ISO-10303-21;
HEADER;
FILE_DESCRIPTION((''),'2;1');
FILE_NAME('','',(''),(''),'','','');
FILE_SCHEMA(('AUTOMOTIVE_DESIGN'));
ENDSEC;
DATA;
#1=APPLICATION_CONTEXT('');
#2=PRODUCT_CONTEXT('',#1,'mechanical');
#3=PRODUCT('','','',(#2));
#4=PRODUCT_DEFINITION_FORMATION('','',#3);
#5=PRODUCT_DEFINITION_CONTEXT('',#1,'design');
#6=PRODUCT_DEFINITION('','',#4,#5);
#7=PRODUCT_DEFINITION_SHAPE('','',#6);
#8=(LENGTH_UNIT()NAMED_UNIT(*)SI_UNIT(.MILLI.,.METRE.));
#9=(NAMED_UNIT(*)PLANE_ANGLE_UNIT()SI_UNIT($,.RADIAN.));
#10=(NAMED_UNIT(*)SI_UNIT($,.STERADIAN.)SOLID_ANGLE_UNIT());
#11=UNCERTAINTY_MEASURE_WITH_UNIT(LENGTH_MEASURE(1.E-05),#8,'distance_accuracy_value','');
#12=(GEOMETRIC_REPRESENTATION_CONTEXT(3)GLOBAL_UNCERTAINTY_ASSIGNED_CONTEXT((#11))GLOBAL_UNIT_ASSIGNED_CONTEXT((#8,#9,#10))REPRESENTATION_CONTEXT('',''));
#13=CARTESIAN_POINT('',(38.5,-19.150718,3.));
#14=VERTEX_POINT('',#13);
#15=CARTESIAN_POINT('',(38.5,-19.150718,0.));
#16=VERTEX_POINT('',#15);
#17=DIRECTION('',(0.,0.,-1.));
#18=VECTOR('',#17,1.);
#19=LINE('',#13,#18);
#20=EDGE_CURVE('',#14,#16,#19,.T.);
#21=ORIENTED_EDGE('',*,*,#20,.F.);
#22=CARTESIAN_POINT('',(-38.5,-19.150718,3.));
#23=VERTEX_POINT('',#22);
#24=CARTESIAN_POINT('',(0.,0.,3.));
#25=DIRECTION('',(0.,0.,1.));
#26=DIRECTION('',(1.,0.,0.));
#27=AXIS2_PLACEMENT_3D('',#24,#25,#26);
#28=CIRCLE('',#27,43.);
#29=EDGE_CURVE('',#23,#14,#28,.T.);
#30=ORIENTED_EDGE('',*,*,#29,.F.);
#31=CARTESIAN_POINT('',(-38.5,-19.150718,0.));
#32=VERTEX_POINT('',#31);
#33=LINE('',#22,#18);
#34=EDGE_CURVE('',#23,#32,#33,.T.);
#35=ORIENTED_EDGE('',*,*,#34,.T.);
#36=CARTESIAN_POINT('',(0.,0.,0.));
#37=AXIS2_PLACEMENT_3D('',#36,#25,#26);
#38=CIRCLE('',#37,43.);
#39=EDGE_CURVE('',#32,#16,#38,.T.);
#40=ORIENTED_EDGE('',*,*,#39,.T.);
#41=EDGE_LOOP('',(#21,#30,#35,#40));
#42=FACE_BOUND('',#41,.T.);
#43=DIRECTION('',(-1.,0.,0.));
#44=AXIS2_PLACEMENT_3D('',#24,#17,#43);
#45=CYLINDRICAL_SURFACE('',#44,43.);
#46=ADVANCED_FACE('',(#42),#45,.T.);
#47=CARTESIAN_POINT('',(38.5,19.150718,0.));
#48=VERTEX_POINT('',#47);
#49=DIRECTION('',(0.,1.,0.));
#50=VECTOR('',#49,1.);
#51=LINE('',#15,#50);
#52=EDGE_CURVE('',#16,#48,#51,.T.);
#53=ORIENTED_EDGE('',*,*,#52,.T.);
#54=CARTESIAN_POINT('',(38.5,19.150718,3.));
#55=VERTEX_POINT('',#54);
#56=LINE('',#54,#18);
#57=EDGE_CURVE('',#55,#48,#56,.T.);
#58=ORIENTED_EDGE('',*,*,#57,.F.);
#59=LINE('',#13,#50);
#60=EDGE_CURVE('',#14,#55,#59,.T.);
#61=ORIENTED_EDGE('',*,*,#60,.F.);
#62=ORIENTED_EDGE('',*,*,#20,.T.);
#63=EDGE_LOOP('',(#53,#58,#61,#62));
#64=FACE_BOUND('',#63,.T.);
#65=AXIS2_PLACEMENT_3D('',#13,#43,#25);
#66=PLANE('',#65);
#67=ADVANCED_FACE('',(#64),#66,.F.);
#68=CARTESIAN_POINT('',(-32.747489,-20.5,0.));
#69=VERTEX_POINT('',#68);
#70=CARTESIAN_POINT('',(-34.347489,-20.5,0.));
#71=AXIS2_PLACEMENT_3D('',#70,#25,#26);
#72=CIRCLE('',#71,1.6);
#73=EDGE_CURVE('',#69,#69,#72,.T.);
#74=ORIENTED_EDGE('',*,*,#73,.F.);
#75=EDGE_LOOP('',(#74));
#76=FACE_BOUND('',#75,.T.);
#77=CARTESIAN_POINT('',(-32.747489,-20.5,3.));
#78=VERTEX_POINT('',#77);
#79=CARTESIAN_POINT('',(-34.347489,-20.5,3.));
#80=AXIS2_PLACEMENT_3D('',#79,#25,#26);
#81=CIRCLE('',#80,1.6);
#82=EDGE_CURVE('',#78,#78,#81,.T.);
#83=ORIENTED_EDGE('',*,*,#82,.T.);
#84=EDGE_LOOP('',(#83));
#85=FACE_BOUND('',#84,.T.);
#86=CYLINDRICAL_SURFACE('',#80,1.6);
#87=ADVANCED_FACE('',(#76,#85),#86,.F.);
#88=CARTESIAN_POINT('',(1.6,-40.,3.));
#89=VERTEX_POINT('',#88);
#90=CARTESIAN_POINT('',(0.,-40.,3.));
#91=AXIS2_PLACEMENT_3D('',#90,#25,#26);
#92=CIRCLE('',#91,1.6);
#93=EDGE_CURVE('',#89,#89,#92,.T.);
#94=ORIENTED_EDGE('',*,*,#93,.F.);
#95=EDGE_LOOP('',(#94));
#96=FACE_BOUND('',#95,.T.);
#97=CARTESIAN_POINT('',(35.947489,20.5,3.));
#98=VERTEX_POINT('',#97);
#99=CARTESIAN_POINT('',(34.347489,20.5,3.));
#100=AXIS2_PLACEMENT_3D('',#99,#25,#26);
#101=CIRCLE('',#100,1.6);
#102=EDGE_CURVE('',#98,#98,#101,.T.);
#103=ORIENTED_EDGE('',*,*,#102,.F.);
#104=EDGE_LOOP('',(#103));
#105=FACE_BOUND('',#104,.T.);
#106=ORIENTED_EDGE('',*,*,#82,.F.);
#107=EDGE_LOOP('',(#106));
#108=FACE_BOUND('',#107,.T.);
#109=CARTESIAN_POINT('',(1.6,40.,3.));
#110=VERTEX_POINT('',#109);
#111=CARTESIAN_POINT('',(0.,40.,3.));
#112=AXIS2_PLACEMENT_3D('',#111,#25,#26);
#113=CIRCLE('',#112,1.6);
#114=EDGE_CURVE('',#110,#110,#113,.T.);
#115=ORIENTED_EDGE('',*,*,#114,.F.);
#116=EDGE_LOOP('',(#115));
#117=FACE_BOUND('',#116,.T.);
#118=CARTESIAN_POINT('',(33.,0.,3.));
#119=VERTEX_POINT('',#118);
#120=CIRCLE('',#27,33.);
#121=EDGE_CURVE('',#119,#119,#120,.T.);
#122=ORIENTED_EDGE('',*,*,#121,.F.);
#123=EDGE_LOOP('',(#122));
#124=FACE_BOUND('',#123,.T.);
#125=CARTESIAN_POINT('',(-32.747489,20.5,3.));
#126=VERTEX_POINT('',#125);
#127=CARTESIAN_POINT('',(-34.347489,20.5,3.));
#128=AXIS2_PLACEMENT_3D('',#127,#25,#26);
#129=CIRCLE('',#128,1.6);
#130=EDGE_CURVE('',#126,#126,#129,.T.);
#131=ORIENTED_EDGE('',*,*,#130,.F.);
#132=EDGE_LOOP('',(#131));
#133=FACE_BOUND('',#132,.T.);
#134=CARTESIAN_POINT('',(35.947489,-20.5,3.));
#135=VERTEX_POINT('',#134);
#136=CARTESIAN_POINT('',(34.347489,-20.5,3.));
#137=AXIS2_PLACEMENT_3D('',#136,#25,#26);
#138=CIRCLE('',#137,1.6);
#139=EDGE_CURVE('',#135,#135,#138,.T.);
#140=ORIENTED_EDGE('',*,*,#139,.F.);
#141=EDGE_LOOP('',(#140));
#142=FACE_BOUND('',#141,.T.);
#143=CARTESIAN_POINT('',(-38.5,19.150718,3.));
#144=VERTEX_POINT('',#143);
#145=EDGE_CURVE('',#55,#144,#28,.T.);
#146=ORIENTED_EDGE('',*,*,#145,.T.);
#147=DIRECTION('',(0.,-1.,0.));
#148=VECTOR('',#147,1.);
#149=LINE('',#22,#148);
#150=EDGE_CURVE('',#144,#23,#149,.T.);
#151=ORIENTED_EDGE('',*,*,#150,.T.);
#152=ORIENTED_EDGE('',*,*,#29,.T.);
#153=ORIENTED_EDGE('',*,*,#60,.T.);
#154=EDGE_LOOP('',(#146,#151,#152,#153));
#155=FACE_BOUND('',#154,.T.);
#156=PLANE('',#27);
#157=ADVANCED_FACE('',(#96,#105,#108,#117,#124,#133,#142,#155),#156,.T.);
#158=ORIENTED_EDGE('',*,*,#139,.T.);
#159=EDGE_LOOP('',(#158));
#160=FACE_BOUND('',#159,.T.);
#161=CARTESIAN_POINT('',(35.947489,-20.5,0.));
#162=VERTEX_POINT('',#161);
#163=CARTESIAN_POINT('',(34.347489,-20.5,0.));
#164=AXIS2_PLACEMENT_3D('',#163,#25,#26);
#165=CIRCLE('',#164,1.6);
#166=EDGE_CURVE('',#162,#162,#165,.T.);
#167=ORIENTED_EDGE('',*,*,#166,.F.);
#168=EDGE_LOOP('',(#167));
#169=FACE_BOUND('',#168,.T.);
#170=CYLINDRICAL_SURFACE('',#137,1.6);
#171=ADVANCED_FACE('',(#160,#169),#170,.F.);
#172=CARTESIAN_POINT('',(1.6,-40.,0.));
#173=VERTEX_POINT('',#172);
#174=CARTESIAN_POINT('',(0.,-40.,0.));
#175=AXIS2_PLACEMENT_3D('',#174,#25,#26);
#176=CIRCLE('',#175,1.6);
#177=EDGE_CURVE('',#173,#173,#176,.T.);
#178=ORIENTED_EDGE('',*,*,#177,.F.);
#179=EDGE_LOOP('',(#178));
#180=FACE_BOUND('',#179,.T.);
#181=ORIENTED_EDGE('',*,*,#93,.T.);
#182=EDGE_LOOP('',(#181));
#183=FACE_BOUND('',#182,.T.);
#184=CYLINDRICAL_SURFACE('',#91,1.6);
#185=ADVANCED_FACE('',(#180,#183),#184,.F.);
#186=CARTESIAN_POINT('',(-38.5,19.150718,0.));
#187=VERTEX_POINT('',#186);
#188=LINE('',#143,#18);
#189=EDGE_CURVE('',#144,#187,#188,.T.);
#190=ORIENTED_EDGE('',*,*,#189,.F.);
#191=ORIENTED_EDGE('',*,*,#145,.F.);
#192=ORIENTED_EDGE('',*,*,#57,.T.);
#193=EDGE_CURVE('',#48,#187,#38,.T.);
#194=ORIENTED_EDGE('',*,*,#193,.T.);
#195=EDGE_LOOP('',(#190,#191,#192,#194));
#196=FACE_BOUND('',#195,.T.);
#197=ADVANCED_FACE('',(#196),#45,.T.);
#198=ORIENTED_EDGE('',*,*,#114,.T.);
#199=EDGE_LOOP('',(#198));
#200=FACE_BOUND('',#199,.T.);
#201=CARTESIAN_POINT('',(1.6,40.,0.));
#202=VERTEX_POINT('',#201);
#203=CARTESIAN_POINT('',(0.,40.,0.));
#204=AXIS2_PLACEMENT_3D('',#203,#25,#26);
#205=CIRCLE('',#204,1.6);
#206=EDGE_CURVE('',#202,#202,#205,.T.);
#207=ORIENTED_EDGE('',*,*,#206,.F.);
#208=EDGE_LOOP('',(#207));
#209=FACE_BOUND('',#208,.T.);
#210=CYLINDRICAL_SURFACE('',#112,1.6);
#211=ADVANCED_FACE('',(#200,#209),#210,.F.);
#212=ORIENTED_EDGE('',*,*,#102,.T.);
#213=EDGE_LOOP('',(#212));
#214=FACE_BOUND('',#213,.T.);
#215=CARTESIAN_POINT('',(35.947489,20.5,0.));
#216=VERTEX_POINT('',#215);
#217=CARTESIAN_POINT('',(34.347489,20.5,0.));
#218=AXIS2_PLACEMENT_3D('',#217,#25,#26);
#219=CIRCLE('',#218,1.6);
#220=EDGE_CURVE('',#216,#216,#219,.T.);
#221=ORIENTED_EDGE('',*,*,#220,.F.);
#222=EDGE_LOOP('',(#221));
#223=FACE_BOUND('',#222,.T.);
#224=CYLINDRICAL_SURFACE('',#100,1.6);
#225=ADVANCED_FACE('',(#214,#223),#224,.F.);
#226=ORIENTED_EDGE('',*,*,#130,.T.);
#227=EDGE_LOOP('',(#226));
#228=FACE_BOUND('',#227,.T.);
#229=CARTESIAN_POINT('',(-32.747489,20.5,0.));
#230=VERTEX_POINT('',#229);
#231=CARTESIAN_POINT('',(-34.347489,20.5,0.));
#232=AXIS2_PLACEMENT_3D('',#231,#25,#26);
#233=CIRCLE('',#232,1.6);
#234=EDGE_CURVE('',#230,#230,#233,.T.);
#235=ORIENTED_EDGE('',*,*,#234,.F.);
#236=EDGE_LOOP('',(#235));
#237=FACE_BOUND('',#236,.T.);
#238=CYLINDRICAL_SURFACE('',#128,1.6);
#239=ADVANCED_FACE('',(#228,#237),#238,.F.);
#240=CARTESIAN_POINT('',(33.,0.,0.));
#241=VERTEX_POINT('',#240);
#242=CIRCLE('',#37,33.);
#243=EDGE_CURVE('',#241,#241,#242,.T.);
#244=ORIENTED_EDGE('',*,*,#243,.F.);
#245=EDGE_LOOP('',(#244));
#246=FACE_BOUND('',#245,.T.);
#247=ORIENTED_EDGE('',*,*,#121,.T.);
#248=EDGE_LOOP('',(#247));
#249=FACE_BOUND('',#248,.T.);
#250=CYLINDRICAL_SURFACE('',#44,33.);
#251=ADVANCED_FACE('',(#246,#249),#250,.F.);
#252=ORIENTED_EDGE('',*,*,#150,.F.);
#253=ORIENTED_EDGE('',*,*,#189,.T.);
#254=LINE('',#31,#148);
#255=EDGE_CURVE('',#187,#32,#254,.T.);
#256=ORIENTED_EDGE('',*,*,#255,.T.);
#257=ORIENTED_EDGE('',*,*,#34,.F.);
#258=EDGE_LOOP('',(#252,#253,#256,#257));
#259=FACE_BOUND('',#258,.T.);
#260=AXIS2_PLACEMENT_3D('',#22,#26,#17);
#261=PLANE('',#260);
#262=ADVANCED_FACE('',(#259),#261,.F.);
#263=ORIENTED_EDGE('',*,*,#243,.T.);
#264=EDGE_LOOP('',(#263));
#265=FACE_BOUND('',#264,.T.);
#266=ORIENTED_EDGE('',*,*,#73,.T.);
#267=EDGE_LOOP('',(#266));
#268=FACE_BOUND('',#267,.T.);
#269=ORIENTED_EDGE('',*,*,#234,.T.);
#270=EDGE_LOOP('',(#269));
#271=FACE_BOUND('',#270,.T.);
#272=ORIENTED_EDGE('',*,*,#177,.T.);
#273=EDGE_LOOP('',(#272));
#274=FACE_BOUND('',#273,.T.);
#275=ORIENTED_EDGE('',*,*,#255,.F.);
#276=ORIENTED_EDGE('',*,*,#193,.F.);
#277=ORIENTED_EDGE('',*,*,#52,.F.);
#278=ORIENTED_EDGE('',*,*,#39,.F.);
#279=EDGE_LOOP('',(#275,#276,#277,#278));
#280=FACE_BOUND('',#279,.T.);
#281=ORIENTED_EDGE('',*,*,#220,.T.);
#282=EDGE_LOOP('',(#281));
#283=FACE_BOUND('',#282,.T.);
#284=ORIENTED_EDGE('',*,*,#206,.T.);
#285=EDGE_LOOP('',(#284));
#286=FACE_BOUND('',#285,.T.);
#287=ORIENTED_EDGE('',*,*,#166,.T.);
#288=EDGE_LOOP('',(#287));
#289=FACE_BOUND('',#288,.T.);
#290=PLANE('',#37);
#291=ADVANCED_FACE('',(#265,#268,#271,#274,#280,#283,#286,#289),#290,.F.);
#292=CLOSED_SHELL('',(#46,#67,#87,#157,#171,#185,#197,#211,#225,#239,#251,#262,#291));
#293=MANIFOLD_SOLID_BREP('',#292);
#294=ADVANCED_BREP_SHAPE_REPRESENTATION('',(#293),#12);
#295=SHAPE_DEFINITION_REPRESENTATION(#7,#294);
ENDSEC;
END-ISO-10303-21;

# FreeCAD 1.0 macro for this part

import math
import FreeCAD as App
import Part
import Sketcher

V = App.Vector
Q = App.Units.Quantity

doc = App.newDocument("Part")
body = doc.addObject("PartDesign::Body", "Body")

# Sketch on XY plane
sketch1 = body.newObject("Sketcher::SketchObject", "Sketch")
sketch1.AttachmentSupport = (doc.getObject("XY_Plane"), [""])
sketch1.MapMode = "FlatFace"
sketch1.addGeometry([
    Part.LineSegment(V(-38.5, 19.150718, 0), V(-38.5, -19.150718, 0)),  # 0
    Part.ArcOfCircle(Part.Circle(V(0, 0, 0), V(0, 0, 1), 43), math.radians(-153.553272), math.radians(-26.446728)),  # 1
    Part.LineSegment(V(38.5, -19.150718, 0), V(38.5, 19.150718, 0)),  # 2
    Part.ArcOfCircle(Part.Circle(V(0, 0, 0), V(0, 0, 1), 43), math.radians(26.446728), math.radians(153.553272)),  # 3
    Part.Circle(V(0, 0, 0), V(0, 0, 1), 33),  # 4
], False)
sketch1.addConstraint([
    Sketcher.Constraint("Coincident", 0, 2, 1, 1),
    Sketcher.Constraint("Coincident", 1, 2, 2, 1),
    Sketcher.Constraint("Coincident", 2, 2, 3, 1),
    Sketcher.Constraint("Coincident", 3, 2, 0, 1),
    Sketcher.Constraint("Vertical", 0),
    Sketcher.Constraint("Vertical", 2),
    Sketcher.Constraint("Coincident", 1, 3, -1, 1),
    Sketcher.Constraint("Coincident", 3, 3, -1, 1),
    Sketcher.Constraint("Coincident", 4, 3, -1, 1),
    Sketcher.Constraint("Equal", 1, 3),
    Sketcher.Constraint("Horizontal", 0, 2, 1, 2),
    Sketcher.Constraint("Diameter", 4, Q("66 mm")),
    Sketcher.Constraint("Radius", 1, Q("43 mm")),
    Sketcher.Constraint("DistanceX", 0, 2, 1, 2, Q("77 mm")),
])
pad1 = body.newObject("PartDesign::Pad", "Pad")
pad1.Profile = sketch1
pad1.Length = 3

# Sketch on XY plane
sketch2 = body.newObject("Sketcher::SketchObject", "Sketch001")
sketch2.AttachmentSupport = (doc.getObject("XY_Plane"), [""])
sketch2.MapMode = "FlatFace"
sketch2.AttachmentOffset = App.Placement(V(0, 0, 3), App.Rotation())
sketch2.addGeometry([
    Part.Circle(V(-34.347489, 20.5, 0), V(0, 0, 1), 1.6),  # 0
    Part.Circle(V(0, 40, 0), V(0, 0, 1), 1.6),  # 1
    Part.Circle(V(0, -40, 0), V(0, 0, 1), 1.6),  # 2
    Part.Circle(V(34.347489, -20.5, 0), V(0, 0, 1), 1.6),  # 3
    Part.Circle(V(34.347489, 20.5, 0), V(0, 0, 1), 1.6),  # 4
    Part.Circle(V(-34.347489, -20.5, 0), V(0, 0, 1), 1.6),  # 5
], False)
sketch2.addConstraint([
    Sketcher.Constraint("Equal", 0, 1),
    Sketcher.Constraint("Equal", 1, 2),
    Sketcher.Constraint("Equal", 2, 3),
    Sketcher.Constraint("Equal", 3, 4),
    Sketcher.Constraint("Equal", 4, 5),
    Sketcher.Constraint("Symmetric", 1, 3, 2, 3, -1, 1),
    Sketcher.Constraint("Symmetric", 0, 3, 3, 3, -1, 1),
    Sketcher.Constraint("Symmetric", 4, 3, 5, 3, -1, 1),
    Sketcher.Constraint("Symmetric", 0, 3, 4, 3, -2),
    Sketcher.Constraint("PointOnObject", 1, 3, -2),
    Sketcher.Constraint("Diameter", 0, Q("3.2 mm")),
    Sketcher.Constraint("DistanceY", -1, 1, 1, 3, Q("40 mm")),
    Sketcher.Constraint("DistanceY", 3, 3, 0, 3, Q("41 mm")),
    Sketcher.Constraint("DistanceX", 0, 3, -1, 1, Q("34.347489 mm")),
])
doc.recompute()
hole = body.newObject("PartDesign::Hole", "Hole")
hole.Profile = sketch2
hole.ThreadType = "None"
hole.Diameter = 3.2
hole.DepthType = "ThroughAll"

doc.recompute()
